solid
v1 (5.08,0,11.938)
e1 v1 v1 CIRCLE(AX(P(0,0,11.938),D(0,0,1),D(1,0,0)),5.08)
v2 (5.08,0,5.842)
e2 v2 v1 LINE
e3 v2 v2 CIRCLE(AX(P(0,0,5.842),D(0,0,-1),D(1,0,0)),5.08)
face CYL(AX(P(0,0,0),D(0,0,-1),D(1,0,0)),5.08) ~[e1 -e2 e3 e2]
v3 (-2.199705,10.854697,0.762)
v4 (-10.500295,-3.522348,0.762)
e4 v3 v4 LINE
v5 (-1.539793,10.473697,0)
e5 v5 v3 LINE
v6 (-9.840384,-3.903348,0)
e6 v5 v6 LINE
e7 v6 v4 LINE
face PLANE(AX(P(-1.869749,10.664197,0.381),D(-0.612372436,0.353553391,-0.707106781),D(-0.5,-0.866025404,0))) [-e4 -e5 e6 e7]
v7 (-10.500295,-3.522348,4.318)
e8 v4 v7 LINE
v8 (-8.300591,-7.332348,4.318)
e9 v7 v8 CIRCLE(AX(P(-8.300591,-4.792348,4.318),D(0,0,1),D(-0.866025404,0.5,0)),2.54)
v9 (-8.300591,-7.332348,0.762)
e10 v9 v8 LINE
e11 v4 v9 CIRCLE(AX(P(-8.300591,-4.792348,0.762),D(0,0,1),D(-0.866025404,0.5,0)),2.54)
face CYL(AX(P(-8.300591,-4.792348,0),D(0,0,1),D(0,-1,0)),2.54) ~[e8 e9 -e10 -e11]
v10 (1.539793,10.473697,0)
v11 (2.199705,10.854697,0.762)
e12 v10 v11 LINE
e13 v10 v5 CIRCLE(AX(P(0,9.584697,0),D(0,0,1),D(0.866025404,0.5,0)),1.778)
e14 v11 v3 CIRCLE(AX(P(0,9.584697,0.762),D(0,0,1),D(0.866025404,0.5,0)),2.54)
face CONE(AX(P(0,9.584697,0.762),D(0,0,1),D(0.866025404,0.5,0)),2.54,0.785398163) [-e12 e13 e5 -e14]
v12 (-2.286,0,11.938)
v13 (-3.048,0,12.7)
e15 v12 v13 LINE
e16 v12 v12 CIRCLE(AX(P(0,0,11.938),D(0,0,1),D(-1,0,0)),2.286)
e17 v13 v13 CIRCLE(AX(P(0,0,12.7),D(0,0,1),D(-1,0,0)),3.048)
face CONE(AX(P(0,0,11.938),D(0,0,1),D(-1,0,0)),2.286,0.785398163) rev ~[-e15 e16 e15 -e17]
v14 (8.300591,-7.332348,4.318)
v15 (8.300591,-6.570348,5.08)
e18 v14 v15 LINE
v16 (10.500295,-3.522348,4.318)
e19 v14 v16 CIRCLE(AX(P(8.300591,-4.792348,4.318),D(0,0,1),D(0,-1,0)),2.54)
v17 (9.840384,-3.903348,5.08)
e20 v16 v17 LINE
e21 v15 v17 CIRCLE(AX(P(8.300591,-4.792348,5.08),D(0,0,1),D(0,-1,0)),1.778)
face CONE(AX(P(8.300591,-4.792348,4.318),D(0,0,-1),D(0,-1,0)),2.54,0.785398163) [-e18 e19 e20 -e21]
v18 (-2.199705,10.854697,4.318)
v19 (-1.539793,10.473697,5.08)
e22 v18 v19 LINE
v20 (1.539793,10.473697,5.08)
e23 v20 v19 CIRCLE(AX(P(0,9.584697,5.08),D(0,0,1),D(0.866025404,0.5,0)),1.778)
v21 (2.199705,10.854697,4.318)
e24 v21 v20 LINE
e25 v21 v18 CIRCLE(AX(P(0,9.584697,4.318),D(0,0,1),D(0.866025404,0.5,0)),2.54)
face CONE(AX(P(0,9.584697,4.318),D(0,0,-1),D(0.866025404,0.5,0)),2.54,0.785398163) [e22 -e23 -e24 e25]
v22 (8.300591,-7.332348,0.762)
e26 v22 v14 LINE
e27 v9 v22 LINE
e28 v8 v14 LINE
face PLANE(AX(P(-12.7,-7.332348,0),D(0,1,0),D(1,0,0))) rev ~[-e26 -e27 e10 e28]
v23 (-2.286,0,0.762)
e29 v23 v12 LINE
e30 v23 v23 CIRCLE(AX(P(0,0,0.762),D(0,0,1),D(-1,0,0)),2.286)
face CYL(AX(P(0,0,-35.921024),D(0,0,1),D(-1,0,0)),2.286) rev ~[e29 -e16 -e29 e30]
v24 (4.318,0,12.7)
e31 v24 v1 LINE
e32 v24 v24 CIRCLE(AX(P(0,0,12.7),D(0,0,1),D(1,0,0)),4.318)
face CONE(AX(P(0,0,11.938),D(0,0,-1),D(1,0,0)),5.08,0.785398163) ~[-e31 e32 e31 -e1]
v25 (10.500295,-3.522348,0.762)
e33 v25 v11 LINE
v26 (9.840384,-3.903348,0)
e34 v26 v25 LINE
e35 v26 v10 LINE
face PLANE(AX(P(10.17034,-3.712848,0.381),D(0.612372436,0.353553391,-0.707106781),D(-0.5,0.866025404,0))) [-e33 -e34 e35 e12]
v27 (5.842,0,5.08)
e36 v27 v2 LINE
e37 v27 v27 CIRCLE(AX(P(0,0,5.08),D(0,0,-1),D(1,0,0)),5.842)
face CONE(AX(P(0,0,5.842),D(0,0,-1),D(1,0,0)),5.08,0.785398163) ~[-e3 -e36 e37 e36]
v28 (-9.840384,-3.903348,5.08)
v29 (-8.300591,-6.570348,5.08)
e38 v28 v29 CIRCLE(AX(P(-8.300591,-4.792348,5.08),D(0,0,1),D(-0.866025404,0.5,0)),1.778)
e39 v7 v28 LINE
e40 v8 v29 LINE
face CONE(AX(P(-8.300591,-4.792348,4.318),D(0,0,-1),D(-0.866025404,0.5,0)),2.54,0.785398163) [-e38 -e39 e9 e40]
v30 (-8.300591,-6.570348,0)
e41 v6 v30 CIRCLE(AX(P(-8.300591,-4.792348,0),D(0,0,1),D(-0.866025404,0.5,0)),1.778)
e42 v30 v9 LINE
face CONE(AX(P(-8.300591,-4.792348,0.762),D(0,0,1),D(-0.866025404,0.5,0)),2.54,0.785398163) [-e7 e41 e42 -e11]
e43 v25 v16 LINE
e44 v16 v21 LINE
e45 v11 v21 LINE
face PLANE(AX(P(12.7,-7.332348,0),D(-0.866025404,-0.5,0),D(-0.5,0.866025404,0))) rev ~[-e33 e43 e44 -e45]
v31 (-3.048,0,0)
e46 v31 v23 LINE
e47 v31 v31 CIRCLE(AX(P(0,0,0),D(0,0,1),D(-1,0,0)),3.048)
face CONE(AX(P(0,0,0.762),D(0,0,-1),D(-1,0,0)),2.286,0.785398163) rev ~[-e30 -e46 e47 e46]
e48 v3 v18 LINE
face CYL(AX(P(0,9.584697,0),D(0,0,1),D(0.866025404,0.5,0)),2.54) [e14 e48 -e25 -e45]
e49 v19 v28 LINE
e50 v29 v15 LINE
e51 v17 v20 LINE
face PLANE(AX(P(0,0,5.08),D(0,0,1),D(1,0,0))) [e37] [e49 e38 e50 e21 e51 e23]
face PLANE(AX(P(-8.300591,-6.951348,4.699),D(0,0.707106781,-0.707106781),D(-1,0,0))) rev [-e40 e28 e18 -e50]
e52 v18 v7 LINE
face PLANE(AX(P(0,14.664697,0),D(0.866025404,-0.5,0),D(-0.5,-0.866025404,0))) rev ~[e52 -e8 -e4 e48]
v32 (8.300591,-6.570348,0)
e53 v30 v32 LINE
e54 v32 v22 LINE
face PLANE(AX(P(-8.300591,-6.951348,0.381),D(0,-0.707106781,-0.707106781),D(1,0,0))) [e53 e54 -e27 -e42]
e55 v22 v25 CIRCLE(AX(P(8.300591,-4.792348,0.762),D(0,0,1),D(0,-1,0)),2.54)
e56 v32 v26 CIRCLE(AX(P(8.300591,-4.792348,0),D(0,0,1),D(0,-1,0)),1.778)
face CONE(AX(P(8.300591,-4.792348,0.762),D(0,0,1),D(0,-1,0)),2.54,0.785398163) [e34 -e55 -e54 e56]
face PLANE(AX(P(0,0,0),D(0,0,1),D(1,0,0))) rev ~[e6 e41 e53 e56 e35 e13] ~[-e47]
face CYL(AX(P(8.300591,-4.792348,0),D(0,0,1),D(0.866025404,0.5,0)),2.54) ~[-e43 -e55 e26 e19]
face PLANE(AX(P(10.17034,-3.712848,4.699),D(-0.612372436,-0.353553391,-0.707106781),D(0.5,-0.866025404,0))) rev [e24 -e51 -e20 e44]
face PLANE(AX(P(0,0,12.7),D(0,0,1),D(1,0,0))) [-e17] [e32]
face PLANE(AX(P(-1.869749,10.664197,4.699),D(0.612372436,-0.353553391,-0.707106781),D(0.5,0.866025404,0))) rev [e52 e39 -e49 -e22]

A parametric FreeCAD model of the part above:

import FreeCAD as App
import Part
import Sketcher

V = App.Vector
Q = App.Units.Quantity


def edges_at(feature, points):
    """Names of the edges that pass closest to the given points."""
    edges = feature.Shape.Edges
    near = lambda p: min(range(len(edges)), key=lambda i: edges[i].distToShape(Part.Vertex(*p))[0])
    return sorted({f"Edge{near(p) + 1}" for p in points})


def add_polygon(sketch, points):
    """Adds a closed chain of lines whose ends are joined by coincident constraints."""
    first, n = sketch.GeometryCount, len(points)
    for a, b in zip(points, points[1:] + points[:1]):
        sketch.addGeometry(Part.LineSegment(App.Vector(*a, 0), App.Vector(*b, 0)), False)
    for i in range(n):
        sketch.addConstraint(Sketcher.Constraint("Coincident", first + i, 2, first + (i + 1) % n, 1))

doc = App.newDocument("Part")
params = doc.addObject("Spreadsheet::Sheet", "Params")
for row, (alias, value) in enumerate([
    ("sketch1_width", "1 in"),
    ("sketch1_length", "1 in"),
    ("pad1_length", "0.2 in"),
    ("sketch2_diameter", "0.4 in"),
    ("pad2_length", "0.5 in"),
    ("sketch3_diameter", "0.18 in"),
    ("hole_diameter", "0.18 in"),
    ("fillet_radius", "0.1 in"),
    ("chamfer_size", "0.03 in"),
], start=1):
    params.set(f"A{row}", alias)
    params.set(f"B{row}", "=" + value)
    params.setAlias(f"B{row}", alias)

body = doc.addObject("PartDesign::Body", "Body")

sketch1 = body.newObject("Sketcher::SketchObject", "Sketch")
sketch1.AttachmentSupport = (doc.getObject("XY_Plane"), [""])
sketch1.MapMode = "FlatFace"
add_polygon(sketch1, [(12.7, -7.332348), (0, 14.664697), (-12.7, -7.332348)])
sketch1.addConstraint([
    Sketcher.Constraint("Horizontal", 2),
    Sketcher.Constraint("PointOnObject", 0, 2, -2),
    Sketcher.Constraint("Equal", 0, 1),
    Sketcher.Constraint("DistanceX", 2, 1, 2, 2, Q("1 in")),
    Sketcher.Constraint("Distance", 0, Q("1 in")),
    Sketcher.Constraint("DistanceY", 1, 2, -1, 1, Q("7.332348 mm")),
])
sketch1.setExpression("Constraints[6]", "Params.sketch1_width")
sketch1.setExpression("Constraints[7]", "Params.sketch1_length")
pad1 = body.newObject("PartDesign::Pad", "Pad")
pad1.Profile = sketch1
pad1.setExpression("Length", "Params.pad1_length")

sketch2 = body.newObject("Sketcher::SketchObject", "Sketch001")
sketch2.AttachmentSupport = (doc.getObject("XY_Plane"), [""])
sketch2.MapMode = "FlatFace"
sketch2.addGeometry(Part.Circle(V(0, 0, 0), V(0, 0, 1), 5.08), False)
sketch2.addConstraint([
    Sketcher.Constraint("Coincident", 0, 3, -1, 1),
    Sketcher.Constraint("Diameter", 0, Q("0.4 in")),
])
sketch2.setExpression("Constraints[1]", "Params.sketch2_diameter")
pad2 = body.newObject("PartDesign::Pad", "Pad001")
pad2.Profile = sketch2
pad2.setExpression("Length", "Params.pad2_length")

sketch3 = body.newObject("Sketcher::SketchObject", "Sketch002")
sketch3.AttachmentSupport = (doc.getObject("XY_Plane"), [""])
sketch3.MapMode = "FlatFace"
sketch3.addGeometry(Part.Circle(V(0, 0, 0), V(0, 0, 1), 2.286), False)
sketch3.addConstraint([
    Sketcher.Constraint("Coincident", 0, 3, -1, 1),
    Sketcher.Constraint("Diameter", 0, Q("0.18 in")),
])
sketch3.setExpression("Constraints[1]", "Params.sketch3_diameter")
doc.recompute()
hole = body.newObject("PartDesign::Hole", "Hole")
hole.Profile = sketch3
hole.ThreadType = "None"
hole.setExpression("Diameter", "Params.hole_diameter")
hole.DepthType = "ThroughAll"
hole.Reversed = True
doc.recompute()

fillet = body.newObject("PartDesign::Fillet", "Fillet")
fillet.Base = (hole, edges_at(hole, [(-12.7, -7.332, 2.54), (12.7, -7.332, 2.54), (0, 14.665, 2.54)]))
fillet.setExpression("Radius", "Params.fillet_radius")
doc.recompute()

chamfer = body.newObject("PartDesign::Chamfer", "Chamfer")
chamfer.Base = (fillet, edges_at(fillet, [
    (6.35, 3.666, 0),
    (10.5, -6.062, 0),
    (0, 12.125, 0),
    (0, -7.332, 0),
    (-6.35, 3.666, 0),
    (-10.5, -6.062, 0),
    (2.286, 0, 0),
    (-5.08, 0, 12.7),
    (2.286, 0, 12.7),
    (6.35, 3.666, 5.08),
    (10.5, -6.062, 5.08),
    (0, 12.125, 5.08),
    (0, -7.332, 5.08),
    (-6.35, 3.666, 5.08),
    (-10.5, -6.062, 5.08),
    (-5.08, 0, 5.08),
]))
chamfer.setExpression("Size", "Params.chamfer_size")

doc.recompute()
